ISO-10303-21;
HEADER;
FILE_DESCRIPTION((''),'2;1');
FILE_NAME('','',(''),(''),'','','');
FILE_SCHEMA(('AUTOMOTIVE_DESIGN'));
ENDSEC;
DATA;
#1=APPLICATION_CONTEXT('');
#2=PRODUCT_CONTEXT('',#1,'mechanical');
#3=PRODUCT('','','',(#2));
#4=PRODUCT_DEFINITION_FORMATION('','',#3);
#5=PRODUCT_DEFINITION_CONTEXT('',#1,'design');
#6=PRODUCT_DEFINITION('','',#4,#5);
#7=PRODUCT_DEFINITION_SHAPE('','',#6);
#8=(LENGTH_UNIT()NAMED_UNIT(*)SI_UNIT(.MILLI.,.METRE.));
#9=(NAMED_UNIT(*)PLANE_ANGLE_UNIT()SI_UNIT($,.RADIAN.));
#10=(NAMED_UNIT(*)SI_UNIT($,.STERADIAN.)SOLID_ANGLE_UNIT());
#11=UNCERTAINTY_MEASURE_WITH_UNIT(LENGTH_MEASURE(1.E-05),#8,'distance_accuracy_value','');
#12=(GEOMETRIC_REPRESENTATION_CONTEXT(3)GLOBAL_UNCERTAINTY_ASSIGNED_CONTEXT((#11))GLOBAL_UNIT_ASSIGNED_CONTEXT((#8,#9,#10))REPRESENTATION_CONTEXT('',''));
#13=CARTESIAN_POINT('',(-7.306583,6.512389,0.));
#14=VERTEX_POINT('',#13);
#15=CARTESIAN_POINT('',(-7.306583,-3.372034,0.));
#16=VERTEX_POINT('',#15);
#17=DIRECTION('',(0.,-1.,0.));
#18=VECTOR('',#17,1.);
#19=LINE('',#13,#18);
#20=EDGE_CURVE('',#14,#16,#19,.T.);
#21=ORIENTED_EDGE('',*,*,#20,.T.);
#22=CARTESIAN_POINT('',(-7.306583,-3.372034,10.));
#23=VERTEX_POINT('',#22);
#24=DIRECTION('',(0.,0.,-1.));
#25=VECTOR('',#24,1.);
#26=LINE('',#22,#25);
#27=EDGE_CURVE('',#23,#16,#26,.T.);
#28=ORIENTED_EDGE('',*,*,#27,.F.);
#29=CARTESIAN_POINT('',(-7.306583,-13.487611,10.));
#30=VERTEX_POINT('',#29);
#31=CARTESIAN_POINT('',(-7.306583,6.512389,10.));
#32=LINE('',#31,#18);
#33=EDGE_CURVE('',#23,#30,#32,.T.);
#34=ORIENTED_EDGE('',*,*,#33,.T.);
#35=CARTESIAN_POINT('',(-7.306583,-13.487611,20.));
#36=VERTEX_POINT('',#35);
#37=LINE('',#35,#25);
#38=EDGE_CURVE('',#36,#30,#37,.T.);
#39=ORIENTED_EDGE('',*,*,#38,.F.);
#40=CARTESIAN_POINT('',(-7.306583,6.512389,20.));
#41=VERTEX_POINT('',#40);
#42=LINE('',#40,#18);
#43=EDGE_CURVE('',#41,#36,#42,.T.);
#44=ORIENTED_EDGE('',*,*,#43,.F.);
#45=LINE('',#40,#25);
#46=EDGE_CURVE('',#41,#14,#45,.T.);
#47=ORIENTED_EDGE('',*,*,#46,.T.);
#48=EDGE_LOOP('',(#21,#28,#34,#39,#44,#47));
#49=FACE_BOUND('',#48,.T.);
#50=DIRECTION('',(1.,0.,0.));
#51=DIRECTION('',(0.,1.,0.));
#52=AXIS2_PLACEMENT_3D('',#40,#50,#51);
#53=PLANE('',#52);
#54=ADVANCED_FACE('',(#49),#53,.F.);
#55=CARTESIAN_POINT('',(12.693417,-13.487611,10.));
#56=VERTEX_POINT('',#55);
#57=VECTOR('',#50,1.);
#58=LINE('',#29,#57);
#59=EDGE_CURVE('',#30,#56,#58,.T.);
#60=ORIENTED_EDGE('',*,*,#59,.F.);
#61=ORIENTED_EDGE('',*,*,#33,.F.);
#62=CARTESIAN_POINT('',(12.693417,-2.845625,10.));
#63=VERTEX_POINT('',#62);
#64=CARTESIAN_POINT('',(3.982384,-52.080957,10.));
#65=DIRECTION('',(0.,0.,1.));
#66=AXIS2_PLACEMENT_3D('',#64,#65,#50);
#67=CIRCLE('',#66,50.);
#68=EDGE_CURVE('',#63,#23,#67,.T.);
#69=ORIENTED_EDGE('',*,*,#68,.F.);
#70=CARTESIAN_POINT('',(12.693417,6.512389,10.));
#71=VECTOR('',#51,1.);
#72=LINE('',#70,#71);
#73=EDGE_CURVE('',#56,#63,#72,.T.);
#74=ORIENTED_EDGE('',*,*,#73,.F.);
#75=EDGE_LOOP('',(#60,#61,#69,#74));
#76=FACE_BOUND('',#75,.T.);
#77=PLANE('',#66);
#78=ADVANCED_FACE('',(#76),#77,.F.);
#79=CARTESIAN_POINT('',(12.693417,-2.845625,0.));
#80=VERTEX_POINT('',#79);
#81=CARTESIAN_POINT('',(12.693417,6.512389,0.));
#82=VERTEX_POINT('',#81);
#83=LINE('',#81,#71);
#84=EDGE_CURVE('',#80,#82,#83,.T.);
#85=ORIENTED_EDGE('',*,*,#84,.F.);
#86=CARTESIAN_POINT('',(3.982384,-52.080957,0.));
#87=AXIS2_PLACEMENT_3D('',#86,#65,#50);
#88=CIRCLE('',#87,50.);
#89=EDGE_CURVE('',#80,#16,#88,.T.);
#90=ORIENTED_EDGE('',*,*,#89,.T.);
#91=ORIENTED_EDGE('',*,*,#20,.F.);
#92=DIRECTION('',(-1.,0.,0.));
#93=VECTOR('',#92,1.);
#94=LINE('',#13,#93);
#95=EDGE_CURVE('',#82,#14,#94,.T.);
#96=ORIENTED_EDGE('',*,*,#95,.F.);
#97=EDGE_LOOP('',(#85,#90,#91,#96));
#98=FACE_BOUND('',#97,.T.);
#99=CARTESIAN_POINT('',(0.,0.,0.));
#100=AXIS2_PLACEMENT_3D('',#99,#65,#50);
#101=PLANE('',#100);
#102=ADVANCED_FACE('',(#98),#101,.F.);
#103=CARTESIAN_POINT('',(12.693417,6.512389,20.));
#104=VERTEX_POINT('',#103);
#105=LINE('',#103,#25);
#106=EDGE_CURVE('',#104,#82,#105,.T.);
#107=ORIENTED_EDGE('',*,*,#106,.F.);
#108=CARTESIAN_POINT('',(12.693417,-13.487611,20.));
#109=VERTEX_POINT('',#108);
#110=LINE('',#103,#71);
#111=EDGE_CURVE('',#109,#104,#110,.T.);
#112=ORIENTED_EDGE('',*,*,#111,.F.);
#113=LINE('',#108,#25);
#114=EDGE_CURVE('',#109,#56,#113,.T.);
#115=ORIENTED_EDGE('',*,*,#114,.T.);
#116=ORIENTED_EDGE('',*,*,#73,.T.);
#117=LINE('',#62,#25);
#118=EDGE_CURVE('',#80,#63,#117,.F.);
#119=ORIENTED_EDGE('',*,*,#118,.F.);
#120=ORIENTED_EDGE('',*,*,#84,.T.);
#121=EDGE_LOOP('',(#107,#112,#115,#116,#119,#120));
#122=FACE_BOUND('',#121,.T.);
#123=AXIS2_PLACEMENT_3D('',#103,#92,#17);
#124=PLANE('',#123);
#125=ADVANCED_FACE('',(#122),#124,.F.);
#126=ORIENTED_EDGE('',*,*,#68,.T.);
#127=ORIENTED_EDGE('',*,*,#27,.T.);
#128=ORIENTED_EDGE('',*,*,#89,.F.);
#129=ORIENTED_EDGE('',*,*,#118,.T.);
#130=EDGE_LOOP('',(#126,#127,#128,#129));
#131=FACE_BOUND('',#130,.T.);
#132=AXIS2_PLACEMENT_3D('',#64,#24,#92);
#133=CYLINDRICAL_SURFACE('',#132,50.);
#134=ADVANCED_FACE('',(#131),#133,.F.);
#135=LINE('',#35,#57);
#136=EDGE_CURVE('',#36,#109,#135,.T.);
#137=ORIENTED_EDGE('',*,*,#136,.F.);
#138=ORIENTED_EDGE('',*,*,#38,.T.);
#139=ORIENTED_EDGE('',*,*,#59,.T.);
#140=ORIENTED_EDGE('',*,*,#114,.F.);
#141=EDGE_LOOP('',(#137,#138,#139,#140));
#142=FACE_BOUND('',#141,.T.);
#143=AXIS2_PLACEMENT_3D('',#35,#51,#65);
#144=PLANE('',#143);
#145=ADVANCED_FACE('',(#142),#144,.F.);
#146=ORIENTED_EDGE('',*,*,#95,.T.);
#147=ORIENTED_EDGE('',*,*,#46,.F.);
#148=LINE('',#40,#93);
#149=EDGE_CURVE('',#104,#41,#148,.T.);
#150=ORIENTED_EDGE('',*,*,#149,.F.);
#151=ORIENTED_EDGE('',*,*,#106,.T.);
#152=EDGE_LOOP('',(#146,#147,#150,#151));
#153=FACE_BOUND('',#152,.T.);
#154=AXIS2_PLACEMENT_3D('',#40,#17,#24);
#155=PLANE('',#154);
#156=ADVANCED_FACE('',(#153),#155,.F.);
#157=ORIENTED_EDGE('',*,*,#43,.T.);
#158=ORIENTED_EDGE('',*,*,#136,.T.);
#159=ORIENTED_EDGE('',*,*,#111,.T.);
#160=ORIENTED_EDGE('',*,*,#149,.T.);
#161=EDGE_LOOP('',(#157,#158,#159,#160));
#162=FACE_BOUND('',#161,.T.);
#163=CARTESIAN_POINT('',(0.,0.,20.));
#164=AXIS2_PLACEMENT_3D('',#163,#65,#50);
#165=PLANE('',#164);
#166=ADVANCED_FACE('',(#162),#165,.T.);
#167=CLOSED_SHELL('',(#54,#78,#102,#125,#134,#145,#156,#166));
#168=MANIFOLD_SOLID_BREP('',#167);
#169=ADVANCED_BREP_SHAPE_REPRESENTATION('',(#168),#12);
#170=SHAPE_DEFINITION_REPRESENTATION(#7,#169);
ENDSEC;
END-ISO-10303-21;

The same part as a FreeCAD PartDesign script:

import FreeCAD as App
import Part
import Sketcher

V = App.Vector
Q = App.Units.Quantity


def add_polygon(sketch, points):
    """Adds a closed chain of lines whose ends are joined by coincident constraints."""
    first, n = sketch.GeometryCount, len(points)
    for a, b in zip(points, points[1:] + points[:1]):
        sketch.addGeometry(Part.LineSegment(App.Vector(*a, 0), App.Vector(*b, 0)), False)
    for i in range(n):
        sketch.addConstraint(Sketcher.Constraint("Coincident", first + i, 2, first + (i + 1) % n, 1))

doc = App.newDocument("Part")
body = doc.addObject("PartDesign::Body", "Body")

# Sketch on XY plane
sketch1 = body.newObject("Sketcher::SketchObject", "Sketch")
sketch1.AttachmentSupport = (doc.getObject("XY_Plane"), [""])
sketch1.MapMode = "FlatFace"
add_polygon(sketch1, [(-7, 7), (-7, -13), (13, -13), (13, 7)])  # lines 0-3
sketch1.addConstraint([
    Sketcher.Constraint("Vertical", 0),
    Sketcher.Constraint("Horizontal", 1),
    Sketcher.Constraint("Vertical", 2),
    Sketcher.Constraint("Horizontal", 3),
    Sketcher.Constraint("Equal", 3, 0),
    Sketcher.Constraint("DistanceX", 1, 1, 1, 2, Q("20 mm")),
    Sketcher.Constraint("DistanceY", 0, 2, -1, 1, Q("13.487611 mm")),
    Sketcher.Constraint("DistanceX", 0, 2, -1, 1, Q("7.306583 mm")),
])
pad1 = body.newObject("PartDesign::Pad", "Pad")
pad1.Profile = sketch1
pad1.Length = 20

# Sketch on XY plane
sketch2 = body.newObject("Sketcher::SketchObject", "Sketch001")
sketch2.AttachmentSupport = (doc.getObject("XY_Plane"), [""])
sketch2.MapMode = "FlatFace"
sketch2.addGeometry(Part.Circle(V(4, -52, 0), V(0, 0, 1), 50), False)
sketch2.addConstraint([
    Sketcher.Constraint("Diameter", 0, Q("100 mm")),
    Sketcher.Constraint("DistanceX", -1, 1, 0, 3, Q("3.982384 mm")),
    Sketcher.Constraint("DistanceY", 0, 3, -1, 1, Q("52.080957 mm")),
])
pocket1 = body.newObject("PartDesign::Pocket", "Pocket")
pocket1.Profile = sketch2
pocket1.Length = 10
pocket1.Reversed = True

doc.recompute()
